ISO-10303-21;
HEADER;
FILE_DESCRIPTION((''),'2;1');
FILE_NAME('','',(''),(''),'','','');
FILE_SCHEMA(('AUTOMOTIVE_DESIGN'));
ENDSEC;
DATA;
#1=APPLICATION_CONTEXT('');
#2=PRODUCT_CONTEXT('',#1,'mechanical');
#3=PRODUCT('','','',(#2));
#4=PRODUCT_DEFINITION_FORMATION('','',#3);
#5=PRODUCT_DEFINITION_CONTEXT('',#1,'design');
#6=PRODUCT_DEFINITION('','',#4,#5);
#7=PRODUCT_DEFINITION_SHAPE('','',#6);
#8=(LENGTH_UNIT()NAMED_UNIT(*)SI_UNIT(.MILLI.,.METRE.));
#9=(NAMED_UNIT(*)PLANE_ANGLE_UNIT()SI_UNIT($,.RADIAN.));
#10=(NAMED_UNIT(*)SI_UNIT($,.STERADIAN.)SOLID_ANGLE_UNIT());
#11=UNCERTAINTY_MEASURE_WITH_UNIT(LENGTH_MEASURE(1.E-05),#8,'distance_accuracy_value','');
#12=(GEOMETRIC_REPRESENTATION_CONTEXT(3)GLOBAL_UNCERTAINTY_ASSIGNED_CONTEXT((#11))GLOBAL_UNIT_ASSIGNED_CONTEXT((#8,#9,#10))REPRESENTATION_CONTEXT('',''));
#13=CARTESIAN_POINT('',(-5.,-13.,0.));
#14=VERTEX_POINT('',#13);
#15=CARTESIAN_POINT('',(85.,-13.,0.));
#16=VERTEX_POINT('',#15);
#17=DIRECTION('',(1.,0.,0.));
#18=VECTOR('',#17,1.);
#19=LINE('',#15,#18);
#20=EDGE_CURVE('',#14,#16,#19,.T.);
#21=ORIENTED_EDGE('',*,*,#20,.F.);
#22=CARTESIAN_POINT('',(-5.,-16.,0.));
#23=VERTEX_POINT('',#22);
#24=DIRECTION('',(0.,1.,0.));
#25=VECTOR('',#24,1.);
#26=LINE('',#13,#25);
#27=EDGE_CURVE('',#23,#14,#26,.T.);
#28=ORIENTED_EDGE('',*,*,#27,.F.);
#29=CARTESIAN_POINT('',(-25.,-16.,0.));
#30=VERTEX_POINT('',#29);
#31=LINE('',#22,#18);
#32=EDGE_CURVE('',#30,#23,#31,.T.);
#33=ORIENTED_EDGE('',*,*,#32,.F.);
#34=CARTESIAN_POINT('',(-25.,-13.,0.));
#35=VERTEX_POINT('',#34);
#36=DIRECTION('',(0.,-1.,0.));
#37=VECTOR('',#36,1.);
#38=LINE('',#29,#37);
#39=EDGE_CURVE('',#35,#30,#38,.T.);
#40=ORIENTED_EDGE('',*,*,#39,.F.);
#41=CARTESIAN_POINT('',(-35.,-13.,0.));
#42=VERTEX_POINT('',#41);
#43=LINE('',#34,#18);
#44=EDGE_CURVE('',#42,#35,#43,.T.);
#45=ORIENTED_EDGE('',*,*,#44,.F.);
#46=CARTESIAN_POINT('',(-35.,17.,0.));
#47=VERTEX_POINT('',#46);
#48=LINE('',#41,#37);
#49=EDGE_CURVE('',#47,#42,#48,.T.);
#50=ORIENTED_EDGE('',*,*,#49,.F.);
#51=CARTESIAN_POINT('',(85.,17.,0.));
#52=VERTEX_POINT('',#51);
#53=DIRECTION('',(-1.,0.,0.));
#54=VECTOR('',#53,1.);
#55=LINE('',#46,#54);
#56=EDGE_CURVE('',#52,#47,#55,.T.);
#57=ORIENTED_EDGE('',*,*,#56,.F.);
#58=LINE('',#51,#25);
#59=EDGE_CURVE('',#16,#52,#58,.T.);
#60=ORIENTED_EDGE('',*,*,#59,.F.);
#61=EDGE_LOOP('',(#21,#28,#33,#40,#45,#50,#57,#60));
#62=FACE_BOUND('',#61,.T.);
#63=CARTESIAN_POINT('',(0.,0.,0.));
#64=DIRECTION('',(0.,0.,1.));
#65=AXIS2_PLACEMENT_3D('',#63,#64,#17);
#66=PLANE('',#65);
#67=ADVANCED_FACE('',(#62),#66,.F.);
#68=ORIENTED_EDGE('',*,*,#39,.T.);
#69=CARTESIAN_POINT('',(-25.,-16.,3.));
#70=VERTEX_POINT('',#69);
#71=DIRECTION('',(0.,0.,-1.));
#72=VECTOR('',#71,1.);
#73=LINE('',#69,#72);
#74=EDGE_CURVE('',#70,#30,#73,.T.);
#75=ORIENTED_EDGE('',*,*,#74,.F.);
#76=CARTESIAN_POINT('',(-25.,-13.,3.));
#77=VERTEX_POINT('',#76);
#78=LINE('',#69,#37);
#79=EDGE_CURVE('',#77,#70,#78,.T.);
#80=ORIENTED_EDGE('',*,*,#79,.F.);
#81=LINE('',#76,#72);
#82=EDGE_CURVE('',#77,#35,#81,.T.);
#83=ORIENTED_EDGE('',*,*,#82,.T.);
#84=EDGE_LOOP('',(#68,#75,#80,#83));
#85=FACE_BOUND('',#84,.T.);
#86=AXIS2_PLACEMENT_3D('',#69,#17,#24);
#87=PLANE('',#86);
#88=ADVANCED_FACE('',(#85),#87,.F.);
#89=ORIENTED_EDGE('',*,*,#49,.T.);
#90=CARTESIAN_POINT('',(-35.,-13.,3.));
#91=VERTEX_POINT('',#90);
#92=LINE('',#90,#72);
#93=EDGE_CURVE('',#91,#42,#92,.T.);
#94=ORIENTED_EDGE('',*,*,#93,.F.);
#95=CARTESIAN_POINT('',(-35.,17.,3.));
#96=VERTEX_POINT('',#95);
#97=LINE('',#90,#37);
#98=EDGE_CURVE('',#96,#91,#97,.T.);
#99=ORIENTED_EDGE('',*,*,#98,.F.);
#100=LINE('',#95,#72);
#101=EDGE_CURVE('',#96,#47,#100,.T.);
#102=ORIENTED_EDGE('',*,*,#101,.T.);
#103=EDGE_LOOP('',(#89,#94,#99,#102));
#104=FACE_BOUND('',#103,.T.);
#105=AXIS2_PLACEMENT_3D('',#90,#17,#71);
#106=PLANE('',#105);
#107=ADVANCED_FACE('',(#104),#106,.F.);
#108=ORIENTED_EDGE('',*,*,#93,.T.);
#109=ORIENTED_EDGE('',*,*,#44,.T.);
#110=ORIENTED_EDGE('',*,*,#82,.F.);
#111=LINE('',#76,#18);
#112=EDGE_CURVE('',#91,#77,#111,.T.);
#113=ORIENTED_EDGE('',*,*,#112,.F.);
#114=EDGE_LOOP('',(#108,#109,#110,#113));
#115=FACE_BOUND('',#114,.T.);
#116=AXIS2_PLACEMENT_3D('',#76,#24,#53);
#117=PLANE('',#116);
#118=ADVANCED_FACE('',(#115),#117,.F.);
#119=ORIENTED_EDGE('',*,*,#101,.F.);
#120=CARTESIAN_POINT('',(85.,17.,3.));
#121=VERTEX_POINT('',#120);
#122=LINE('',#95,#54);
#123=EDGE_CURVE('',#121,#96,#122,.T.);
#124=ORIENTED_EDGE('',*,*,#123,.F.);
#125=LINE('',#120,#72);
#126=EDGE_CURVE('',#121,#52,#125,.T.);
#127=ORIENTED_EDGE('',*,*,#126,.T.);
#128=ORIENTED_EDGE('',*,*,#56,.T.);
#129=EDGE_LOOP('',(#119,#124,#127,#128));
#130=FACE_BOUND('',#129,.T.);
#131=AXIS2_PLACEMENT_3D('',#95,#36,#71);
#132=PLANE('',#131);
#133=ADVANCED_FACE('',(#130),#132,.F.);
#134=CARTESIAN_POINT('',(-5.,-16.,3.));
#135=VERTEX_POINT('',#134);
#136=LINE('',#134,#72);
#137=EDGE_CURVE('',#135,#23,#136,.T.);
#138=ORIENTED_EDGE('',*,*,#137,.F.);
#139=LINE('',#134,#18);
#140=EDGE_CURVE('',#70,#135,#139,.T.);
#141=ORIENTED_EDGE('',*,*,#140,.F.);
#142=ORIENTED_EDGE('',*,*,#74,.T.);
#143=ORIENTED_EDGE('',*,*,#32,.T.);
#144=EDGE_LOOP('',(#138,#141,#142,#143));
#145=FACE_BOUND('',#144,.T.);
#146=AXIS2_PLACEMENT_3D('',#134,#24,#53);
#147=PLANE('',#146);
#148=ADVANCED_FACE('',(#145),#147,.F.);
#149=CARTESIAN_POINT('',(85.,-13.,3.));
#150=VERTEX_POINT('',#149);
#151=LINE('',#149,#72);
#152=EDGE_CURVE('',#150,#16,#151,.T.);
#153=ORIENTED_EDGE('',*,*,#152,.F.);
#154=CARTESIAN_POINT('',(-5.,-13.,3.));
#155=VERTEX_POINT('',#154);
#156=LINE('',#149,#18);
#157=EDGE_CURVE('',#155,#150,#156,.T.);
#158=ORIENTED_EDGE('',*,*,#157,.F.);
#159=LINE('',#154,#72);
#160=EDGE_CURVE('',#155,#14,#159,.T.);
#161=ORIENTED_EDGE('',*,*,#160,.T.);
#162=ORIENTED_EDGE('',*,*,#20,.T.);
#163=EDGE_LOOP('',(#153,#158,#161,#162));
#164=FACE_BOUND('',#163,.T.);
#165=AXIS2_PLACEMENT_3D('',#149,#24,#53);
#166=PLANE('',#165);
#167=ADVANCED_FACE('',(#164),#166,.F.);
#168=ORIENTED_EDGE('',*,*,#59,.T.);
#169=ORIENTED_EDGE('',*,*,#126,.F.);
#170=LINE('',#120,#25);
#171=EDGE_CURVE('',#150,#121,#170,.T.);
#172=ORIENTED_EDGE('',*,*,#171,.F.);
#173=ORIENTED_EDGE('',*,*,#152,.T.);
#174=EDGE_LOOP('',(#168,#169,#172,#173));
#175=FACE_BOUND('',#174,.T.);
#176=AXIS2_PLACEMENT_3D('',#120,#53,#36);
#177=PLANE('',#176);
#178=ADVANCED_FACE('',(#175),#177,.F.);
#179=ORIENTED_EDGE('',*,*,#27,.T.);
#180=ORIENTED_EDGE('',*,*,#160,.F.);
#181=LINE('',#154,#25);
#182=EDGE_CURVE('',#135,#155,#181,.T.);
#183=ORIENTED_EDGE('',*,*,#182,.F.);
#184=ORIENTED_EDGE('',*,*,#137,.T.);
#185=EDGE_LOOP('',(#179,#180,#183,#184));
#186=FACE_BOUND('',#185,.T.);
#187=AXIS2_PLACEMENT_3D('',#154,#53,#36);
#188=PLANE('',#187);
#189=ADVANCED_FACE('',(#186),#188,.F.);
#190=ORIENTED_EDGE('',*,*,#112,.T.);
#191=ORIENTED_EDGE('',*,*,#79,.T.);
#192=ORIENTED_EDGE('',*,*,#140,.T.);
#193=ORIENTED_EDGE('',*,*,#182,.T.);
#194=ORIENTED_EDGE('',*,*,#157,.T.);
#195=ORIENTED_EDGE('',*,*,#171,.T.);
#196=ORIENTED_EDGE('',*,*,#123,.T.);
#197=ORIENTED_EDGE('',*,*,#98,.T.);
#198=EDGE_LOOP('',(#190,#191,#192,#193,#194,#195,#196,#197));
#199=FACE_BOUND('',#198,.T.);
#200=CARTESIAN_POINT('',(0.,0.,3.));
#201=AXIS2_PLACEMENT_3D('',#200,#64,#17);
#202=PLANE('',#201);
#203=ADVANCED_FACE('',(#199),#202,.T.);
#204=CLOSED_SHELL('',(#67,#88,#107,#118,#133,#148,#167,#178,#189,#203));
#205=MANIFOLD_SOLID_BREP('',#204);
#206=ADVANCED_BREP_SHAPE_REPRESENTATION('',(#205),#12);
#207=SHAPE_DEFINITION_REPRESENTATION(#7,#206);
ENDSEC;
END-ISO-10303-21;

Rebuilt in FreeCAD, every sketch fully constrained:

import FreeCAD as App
import Part
import Sketcher

V = App.Vector
Q = App.Units.Quantity

doc = App.newDocument("Part")
body = doc.addObject("PartDesign::Body", "Body")

# Sketch on XY plane
sketch1 = body.newObject("Sketcher::SketchObject", "Sketch")
sketch1.AttachmentSupport = (doc.getObject("XY_Plane"), [""])
sketch1.MapMode = "FlatFace"
sketch1.addGeometry([
    Part.LineSegment(V(-35, -13, 0), V(-25, -13, 0)),  # 0
    Part.LineSegment(V(-25, -13, 0), V(-25, -16, 0)),  # 1
    Part.LineSegment(V(-25, -16, 0), V(-5, -16, 0)),  # 2
    Part.LineSegment(V(-5, -16, 0), V(-5, -13, 0)),  # 3
    Part.LineSegment(V(-5, -13, 0), V(85, -13, 0)),  # 4
    Part.LineSegment(V(85, -13, 0), V(85, 17, 0)),  # 5
    Part.LineSegment(V(85, 17, 0), V(-35, 17, 0)),  # 6
    Part.LineSegment(V(-35, 17, 0), V(-35, -13, 0)),  # 7
], False)
sketch1.addConstraint([
    Sketcher.Constraint("Coincident", 0, 2, 1, 1),
    Sketcher.Constraint("Coincident", 1, 2, 2, 1),
    Sketcher.Constraint("Coincident", 2, 2, 3, 1),
    Sketcher.Constraint("Coincident", 3, 2, 4, 1),
    Sketcher.Constraint("Coincident", 4, 2, 5, 1),
    Sketcher.Constraint("Coincident", 5, 2, 6, 1),
    Sketcher.Constraint("Coincident", 6, 2, 7, 1),
    Sketcher.Constraint("Coincident", 7, 2, 0, 1),
    Sketcher.Constraint("Horizontal", 0),
    Sketcher.Constraint("Vertical", 1),
    Sketcher.Constraint("Horizontal", 2),
    Sketcher.Constraint("Vertical", 3),
    Sketcher.Constraint("Horizontal", 4),
    Sketcher.Constraint("Vertical", 5),
    Sketcher.Constraint("Horizontal", 6),
    Sketcher.Constraint("Vertical", 7),
    Sketcher.Constraint("Horizontal", 0, 2, 3, 2),
    Sketcher.Constraint("DistanceX", 0, 1, 0, 2, Q("10 mm")),
    Sketcher.Constraint("DistanceX", 2, 1, 2, 2, Q("20 mm")),
    Sketcher.Constraint("DistanceX", 4, 1, 4, 2, Q("90 mm")),
    Sketcher.Constraint("DistanceY", 1, 2, 1, 1, Q("3 mm")),
    Sketcher.Constraint("DistanceY", 5, 1, 5, 2, Q("30 mm")),
    Sketcher.Constraint("DistanceX", 0, 2, -1, 1, Q("25 mm")),
    Sketcher.Constraint("DistanceY", 0, 2, -1, 1, Q("13 mm")),
])
pad1 = body.newObject("PartDesign::Pad", "Pad")
pad1.Profile = sketch1
pad1.Length = 3

doc.recompute()
